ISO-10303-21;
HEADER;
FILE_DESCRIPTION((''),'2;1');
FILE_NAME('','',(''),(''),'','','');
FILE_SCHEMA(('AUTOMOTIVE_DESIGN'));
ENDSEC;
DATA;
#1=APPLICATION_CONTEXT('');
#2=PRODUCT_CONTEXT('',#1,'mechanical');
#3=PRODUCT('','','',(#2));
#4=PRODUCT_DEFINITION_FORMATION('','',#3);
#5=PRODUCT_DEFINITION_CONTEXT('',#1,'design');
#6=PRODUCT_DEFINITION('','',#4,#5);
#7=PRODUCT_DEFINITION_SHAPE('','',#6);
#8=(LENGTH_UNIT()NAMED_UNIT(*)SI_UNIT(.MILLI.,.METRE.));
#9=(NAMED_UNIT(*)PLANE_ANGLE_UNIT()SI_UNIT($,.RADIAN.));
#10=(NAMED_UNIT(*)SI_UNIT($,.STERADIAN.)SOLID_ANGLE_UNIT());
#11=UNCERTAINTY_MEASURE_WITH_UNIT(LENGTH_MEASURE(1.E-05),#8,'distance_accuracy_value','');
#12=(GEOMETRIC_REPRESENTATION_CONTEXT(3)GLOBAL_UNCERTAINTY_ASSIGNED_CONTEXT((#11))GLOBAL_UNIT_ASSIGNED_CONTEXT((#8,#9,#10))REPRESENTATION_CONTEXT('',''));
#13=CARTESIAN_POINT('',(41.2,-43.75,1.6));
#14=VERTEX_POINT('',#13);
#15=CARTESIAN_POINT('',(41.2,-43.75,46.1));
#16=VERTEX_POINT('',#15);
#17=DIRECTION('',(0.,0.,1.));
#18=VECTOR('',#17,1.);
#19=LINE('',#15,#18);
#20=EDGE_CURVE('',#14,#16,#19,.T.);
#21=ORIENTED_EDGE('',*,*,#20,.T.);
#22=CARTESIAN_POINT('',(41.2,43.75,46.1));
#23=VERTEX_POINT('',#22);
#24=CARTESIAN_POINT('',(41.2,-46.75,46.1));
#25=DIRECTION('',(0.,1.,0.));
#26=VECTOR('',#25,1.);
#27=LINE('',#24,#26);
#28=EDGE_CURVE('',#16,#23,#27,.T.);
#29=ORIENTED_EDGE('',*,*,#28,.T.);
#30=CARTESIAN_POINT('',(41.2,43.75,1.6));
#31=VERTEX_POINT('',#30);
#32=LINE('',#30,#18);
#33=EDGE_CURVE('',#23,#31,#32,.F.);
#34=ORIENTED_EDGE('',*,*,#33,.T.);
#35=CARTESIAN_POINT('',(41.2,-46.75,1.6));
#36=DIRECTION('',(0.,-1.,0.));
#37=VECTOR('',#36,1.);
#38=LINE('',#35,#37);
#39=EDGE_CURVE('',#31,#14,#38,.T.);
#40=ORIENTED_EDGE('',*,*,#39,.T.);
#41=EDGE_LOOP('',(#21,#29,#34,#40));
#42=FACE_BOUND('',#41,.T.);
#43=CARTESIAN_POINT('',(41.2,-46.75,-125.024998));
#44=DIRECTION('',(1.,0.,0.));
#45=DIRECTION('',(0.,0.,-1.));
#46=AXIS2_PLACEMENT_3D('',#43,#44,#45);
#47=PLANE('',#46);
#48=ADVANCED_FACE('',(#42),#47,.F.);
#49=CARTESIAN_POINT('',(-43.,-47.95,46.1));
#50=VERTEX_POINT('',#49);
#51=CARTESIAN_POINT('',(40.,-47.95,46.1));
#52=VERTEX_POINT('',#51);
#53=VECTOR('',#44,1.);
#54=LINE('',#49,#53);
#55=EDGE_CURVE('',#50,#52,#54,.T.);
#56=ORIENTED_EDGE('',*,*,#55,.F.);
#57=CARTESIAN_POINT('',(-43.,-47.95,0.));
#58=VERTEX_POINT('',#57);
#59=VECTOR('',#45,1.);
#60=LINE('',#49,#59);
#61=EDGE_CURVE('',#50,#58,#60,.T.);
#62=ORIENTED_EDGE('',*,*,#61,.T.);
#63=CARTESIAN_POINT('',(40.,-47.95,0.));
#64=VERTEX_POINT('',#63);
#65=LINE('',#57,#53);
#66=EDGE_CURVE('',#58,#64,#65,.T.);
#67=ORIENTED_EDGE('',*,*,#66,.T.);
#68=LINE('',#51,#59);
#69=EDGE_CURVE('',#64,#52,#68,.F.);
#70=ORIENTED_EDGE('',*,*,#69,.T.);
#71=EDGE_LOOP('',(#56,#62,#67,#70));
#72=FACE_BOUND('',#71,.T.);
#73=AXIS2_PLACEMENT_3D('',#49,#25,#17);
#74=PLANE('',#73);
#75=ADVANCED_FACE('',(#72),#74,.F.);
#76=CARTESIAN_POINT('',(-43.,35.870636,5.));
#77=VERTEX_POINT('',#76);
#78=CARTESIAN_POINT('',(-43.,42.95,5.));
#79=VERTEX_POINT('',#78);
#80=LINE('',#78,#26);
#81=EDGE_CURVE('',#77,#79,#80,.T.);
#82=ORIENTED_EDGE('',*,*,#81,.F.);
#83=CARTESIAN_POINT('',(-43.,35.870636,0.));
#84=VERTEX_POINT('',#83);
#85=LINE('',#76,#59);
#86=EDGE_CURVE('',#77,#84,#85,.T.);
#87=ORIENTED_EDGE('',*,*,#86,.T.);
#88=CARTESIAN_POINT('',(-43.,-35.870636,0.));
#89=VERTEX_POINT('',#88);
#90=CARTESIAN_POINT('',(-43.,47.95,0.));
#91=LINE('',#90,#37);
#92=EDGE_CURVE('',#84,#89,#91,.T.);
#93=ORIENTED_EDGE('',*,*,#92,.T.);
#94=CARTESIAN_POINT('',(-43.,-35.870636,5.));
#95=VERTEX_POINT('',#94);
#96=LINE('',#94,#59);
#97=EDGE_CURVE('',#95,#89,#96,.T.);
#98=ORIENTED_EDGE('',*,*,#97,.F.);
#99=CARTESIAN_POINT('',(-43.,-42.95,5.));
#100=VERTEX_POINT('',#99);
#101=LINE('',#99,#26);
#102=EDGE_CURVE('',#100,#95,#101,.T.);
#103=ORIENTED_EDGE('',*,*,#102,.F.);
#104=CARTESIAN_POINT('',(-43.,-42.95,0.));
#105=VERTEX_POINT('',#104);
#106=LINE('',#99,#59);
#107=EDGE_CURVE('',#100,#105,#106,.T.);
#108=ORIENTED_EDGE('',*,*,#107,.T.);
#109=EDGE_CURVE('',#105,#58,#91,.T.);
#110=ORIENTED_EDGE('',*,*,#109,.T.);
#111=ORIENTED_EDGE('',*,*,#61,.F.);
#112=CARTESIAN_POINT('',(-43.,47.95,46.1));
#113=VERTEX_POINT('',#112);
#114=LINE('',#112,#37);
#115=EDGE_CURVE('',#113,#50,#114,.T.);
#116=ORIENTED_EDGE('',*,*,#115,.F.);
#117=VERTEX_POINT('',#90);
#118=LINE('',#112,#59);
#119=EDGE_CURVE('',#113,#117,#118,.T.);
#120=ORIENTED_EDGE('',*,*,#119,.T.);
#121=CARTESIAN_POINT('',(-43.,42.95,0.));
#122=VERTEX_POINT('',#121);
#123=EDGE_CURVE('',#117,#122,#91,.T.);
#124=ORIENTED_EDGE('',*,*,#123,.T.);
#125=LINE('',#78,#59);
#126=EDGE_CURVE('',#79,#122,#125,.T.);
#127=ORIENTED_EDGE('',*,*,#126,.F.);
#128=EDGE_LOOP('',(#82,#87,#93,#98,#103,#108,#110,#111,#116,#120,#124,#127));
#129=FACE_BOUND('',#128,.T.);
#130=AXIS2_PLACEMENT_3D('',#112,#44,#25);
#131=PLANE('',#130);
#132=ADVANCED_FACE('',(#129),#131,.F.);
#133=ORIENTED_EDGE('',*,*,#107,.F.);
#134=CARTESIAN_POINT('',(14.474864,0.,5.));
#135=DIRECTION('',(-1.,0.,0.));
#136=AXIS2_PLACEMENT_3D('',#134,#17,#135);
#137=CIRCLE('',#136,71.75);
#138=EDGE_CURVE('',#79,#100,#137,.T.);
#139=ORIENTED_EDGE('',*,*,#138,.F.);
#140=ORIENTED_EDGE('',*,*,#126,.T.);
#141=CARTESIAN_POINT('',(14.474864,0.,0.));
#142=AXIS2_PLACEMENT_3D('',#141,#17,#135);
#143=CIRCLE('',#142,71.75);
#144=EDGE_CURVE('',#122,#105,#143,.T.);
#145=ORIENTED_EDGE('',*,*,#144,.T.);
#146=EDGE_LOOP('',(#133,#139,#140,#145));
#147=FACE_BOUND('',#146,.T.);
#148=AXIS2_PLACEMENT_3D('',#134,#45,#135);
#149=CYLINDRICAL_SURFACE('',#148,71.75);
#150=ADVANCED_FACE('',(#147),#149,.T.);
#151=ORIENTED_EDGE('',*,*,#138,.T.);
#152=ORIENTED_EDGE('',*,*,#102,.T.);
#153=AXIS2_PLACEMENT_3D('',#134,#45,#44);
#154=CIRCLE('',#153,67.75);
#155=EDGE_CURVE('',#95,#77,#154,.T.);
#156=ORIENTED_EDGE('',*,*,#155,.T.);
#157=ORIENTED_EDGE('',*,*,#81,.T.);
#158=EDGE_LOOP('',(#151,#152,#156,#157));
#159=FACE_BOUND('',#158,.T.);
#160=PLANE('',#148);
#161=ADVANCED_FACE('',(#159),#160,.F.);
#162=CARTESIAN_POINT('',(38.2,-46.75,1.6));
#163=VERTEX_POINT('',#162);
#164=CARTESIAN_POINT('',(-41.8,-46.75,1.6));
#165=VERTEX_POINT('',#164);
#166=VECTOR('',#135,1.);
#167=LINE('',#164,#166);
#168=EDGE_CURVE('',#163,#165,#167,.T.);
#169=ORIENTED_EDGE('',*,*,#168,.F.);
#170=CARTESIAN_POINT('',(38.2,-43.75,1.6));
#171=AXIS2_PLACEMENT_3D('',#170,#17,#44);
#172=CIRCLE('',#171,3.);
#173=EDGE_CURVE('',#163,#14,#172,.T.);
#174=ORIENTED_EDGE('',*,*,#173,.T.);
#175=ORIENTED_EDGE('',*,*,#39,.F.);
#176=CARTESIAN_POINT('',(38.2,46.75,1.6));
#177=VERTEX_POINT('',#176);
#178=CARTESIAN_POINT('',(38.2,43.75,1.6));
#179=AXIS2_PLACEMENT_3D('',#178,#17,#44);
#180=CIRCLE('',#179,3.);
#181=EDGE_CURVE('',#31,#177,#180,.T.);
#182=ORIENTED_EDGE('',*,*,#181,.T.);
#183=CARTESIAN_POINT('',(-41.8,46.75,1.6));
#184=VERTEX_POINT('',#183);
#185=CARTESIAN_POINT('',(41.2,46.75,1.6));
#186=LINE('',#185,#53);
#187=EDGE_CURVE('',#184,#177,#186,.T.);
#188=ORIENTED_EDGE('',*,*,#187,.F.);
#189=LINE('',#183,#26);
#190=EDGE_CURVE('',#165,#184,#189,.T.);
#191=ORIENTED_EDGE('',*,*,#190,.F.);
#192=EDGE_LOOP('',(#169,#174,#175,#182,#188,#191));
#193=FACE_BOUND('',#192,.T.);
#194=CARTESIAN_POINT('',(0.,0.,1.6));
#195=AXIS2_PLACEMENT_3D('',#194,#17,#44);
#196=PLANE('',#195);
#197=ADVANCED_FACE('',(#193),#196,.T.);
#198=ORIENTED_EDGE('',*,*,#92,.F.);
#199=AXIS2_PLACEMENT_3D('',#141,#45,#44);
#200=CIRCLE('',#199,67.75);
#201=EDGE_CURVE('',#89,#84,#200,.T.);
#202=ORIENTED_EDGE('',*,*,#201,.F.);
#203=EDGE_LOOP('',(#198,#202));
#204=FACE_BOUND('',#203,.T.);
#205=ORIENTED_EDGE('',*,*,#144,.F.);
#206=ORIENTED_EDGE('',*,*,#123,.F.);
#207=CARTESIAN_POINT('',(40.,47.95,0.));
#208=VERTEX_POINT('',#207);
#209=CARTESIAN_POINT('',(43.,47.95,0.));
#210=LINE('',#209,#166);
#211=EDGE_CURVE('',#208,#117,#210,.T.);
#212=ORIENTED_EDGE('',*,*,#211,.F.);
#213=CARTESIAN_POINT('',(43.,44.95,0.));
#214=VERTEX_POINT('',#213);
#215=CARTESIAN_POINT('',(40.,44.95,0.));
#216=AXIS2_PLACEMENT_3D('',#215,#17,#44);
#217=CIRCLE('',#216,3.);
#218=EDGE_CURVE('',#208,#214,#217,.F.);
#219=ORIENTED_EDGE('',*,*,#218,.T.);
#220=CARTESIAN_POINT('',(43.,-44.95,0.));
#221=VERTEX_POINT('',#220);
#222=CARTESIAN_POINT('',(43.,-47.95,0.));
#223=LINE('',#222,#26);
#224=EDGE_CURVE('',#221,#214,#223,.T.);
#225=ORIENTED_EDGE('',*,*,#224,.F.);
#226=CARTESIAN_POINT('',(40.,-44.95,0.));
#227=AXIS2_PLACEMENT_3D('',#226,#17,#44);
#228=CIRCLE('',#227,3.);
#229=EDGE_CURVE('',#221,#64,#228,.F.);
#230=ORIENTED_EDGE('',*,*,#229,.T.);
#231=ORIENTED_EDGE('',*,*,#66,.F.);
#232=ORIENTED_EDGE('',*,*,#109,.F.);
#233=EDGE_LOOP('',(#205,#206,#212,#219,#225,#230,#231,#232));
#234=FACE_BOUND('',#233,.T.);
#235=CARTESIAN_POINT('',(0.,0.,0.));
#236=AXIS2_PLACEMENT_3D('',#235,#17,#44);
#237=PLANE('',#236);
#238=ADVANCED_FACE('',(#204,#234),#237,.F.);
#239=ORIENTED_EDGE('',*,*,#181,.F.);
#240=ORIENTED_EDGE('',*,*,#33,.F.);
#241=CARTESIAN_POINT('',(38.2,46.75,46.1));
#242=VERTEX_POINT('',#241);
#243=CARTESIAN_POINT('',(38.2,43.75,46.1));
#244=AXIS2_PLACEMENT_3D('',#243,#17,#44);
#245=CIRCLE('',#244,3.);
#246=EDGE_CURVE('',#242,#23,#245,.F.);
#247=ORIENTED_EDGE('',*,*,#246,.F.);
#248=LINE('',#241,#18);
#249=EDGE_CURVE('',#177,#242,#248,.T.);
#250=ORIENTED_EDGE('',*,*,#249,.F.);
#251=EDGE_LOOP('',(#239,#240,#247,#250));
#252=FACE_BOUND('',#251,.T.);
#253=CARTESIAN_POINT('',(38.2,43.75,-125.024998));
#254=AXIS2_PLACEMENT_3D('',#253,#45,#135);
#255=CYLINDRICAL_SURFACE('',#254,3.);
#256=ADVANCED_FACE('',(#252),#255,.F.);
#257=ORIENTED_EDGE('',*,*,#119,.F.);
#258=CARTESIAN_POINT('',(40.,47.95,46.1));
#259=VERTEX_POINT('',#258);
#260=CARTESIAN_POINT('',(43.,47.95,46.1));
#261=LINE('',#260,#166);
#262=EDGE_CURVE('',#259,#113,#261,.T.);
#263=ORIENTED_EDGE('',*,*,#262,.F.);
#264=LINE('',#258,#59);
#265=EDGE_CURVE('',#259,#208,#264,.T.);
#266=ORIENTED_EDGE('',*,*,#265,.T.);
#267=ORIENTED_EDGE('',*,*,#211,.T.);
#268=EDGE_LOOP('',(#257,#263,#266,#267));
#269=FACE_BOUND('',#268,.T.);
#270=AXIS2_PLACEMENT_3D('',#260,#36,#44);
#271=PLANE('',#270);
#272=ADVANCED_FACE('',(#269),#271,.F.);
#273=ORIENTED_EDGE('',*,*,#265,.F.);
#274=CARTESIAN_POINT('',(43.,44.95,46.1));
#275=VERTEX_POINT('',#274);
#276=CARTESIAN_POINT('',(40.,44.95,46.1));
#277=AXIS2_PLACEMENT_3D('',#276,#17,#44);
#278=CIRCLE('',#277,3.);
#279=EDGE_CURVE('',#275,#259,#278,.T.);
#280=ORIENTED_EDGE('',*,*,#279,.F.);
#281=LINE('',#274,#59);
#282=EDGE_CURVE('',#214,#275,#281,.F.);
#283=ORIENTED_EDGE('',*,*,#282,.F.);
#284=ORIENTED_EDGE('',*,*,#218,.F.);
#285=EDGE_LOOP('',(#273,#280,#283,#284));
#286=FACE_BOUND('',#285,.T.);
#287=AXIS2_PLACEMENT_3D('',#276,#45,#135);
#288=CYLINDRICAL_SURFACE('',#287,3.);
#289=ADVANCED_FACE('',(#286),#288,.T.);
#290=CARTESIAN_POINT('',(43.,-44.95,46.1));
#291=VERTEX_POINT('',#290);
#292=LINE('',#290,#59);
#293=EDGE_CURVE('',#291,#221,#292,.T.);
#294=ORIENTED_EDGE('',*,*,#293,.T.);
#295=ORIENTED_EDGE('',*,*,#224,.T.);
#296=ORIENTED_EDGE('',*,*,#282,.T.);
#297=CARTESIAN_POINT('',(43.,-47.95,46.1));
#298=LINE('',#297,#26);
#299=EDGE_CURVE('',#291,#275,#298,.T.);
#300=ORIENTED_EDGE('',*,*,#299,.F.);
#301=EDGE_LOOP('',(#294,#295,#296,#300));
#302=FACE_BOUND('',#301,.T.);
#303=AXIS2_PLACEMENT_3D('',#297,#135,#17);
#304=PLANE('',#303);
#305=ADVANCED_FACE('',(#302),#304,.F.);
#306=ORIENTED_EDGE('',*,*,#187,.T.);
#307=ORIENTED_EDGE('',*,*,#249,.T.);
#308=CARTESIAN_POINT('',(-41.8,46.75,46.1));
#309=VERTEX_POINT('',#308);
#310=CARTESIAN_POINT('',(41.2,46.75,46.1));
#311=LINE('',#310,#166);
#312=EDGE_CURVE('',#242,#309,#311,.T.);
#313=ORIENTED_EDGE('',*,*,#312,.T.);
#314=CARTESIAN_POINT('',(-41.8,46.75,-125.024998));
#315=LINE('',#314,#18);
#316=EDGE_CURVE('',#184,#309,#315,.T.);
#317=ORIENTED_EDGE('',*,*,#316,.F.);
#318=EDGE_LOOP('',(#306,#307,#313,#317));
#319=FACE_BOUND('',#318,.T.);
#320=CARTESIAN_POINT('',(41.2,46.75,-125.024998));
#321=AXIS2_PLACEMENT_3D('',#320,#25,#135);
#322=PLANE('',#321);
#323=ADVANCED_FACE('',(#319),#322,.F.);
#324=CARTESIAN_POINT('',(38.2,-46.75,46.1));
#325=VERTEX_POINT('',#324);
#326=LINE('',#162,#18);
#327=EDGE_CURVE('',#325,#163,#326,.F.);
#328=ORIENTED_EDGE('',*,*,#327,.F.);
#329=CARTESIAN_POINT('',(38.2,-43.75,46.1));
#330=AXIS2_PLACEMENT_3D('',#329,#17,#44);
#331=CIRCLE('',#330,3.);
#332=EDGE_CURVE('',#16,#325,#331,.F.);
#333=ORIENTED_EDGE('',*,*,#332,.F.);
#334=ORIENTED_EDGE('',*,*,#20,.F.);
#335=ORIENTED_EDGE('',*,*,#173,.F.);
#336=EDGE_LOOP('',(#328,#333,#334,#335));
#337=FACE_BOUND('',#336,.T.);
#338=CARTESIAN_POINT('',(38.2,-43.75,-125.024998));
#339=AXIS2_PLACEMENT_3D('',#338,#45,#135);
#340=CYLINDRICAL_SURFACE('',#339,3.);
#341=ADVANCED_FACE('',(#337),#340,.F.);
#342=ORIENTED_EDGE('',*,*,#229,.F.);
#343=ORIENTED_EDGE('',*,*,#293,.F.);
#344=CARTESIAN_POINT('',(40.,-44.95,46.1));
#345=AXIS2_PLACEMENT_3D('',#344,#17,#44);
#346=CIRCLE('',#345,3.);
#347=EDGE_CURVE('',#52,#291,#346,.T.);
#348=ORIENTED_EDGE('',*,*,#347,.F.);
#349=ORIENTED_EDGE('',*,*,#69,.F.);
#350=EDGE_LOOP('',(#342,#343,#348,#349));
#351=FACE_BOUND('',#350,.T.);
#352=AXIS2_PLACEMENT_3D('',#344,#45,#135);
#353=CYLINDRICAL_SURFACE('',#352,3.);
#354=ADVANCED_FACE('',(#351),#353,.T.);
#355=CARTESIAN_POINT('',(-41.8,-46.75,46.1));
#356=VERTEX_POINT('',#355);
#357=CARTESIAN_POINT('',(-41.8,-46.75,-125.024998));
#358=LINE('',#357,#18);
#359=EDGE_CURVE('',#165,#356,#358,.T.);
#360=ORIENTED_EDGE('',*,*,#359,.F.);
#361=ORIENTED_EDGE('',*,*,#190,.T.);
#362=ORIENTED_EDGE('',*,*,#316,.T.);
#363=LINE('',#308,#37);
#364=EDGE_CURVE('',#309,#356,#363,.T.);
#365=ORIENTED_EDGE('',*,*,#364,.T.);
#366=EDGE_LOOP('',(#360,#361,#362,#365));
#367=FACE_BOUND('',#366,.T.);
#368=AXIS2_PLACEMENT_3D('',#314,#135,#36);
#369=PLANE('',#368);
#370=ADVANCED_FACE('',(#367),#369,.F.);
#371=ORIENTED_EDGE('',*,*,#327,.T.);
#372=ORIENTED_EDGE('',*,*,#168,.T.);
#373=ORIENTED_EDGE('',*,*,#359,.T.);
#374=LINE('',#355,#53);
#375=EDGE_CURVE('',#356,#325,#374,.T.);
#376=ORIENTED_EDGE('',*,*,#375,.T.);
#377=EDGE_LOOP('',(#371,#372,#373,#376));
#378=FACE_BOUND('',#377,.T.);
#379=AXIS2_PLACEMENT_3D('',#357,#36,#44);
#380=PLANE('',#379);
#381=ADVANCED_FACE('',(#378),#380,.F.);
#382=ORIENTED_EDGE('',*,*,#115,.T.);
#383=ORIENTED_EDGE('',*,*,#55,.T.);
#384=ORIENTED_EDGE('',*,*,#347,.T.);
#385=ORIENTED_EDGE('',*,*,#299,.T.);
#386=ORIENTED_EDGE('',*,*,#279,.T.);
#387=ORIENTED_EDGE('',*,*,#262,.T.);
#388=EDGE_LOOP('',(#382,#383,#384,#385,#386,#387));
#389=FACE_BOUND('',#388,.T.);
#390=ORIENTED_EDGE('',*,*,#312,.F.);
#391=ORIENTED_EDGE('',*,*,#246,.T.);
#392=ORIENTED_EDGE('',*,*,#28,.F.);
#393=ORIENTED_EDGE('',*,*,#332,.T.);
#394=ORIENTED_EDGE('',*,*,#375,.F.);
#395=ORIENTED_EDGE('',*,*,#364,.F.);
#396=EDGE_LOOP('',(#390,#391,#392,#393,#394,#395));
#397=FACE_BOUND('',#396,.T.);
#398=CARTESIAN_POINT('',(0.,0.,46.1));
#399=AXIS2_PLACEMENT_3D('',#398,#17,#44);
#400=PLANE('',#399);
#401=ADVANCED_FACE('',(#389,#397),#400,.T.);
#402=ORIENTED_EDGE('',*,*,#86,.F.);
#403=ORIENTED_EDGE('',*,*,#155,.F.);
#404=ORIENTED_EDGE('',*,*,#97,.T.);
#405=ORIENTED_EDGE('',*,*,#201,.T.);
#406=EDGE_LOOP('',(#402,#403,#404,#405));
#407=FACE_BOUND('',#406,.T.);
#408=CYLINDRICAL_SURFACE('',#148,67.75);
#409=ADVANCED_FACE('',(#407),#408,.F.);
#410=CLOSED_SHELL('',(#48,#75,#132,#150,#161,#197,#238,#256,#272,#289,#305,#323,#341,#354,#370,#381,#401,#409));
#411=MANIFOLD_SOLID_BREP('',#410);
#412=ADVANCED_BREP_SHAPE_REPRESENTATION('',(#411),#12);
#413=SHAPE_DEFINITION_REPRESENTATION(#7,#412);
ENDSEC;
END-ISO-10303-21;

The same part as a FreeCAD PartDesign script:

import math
import FreeCAD as App
import Part
import Sketcher

V = App.Vector
Q = App.Units.Quantity


def edges_at(feature, points):
    """Names of the edges that pass closest to the given points."""
    edges = feature.Shape.Edges
    near = lambda p: min(range(len(edges)), key=lambda i: edges[i].distToShape(Part.Vertex(*p))[0])
    return sorted({f"Edge{near(p) + 1}" for p in points})

doc = App.newDocument("Part")
params = doc.addObject("Spreadsheet::Sheet", "Params")
for row, (alias, value) in enumerate([
    ("sketch1_width", "86 mm"),
    ("sketch1_height", "95.9 mm"),
    ("pad1_length", "46.1 mm"),
    ("sketch2_radius", "71.75 mm"),
    ("sketch2_radius2", "67.75 mm"),
    ("pad2_length", "5 mm"),
    ("sketch3_width", "83 mm"),
    ("sketch3_height", "93.5 mm"),
    ("pocket1_length", "44.5 mm"),
    ("fillet_radius", "3 mm"),
], start=1):
    params.set(f"A{row}", alias)
    params.set(f"B{row}", "=" + value)
    params.setAlias(f"B{row}", alias)

body = doc.addObject("PartDesign::Body", "Body")

sketch1 = body.newObject("Sketcher::SketchObject", "Sketch")
sketch1.AttachmentSupport = (doc.getObject("XY_Plane"), [""])
sketch1.MapMode = "FlatFace"
sketch1.addGeometry([
    Part.LineSegment(V(-43, 47.95, 0), V(-43, -47.95, 0)),
    Part.LineSegment(V(-43, -47.95, 0), V(43, -47.95, 0)),
    Part.LineSegment(V(43, -47.95, 0), V(43, 47.95, 0)),
    Part.LineSegment(V(43, 47.95, 0), V(-43, 47.95, 0)),
], False)
sketch1.addConstraint([
    Sketcher.Constraint("Coincident", 0, 2, 1, 1),
    Sketcher.Constraint("Coincident", 1, 2, 2, 1),
    Sketcher.Constraint("Coincident", 2, 2, 3, 1),
    Sketcher.Constraint("Coincident", 3, 2, 0, 1),
    Sketcher.Constraint("Vertical", 0),
    Sketcher.Constraint("Horizontal", 1),
    Sketcher.Constraint("Vertical", 2),
    Sketcher.Constraint("Horizontal", 3),
    Sketcher.Constraint("Symmetric", 0, 2, 2, 2, -1, 1),
    Sketcher.Constraint("DistanceX", 1, 1, 1, 2, Q("86 mm")),
    Sketcher.Constraint("DistanceY", 0, 2, 0, 1, Q("95.9 mm")),
])
sketch1.setExpression("Constraints[9]", "Params.sketch1_width")
sketch1.setExpression("Constraints[10]", "Params.sketch1_height")
pad1 = body.newObject("PartDesign::Pad", "Pad")
pad1.Profile = sketch1
pad1.setExpression("Length", "Params.pad1_length")

sketch2 = body.newObject("Sketcher::SketchObject", "Sketch001")
sketch2.AttachmentSupport = (doc.getObject("XY_Plane"), [""])
sketch2.MapMode = "FlatFace"
sketch2.addGeometry([
    Part.LineSegment(V(-43, 35.870636, 0), V(-43, 42.95, 0)),
    Part.ArcOfCircle(Part.Circle(V(14.474864, 0, 0), V(0, 0, 1), 71.75), math.radians(143.229856), math.radians(216.770144)),
    Part.LineSegment(V(-43, -42.95, 0), V(-43, -35.870636, 0)),
    Part.ArcOfCircle(Part.Circle(V(14.474864, 0, 0), V(0, 0, 1), 67.75), math.radians(148.031302), math.radians(211.968698)),
], False)
sketch2.addConstraint([
    Sketcher.Constraint("Coincident", 0, 2, 1, 1),
    Sketcher.Constraint("Coincident", 1, 2, 2, 1),
    Sketcher.Constraint("Coincident", 2, 2, 3, 2),
    Sketcher.Constraint("Coincident", 3, 1, 0, 1),
    Sketcher.Constraint("Vertical", 0),
    Sketcher.Constraint("Vertical", 2),
    Sketcher.Constraint("Coincident", 3, 3, 1, 3),
    Sketcher.Constraint("Symmetric", 0, 2, 1, 2, -1),
    Sketcher.Constraint("Radius", 1, Q("71.75 mm")),
    Sketcher.Constraint("Radius", 3, Q("67.75 mm")),
    Sketcher.Constraint("DistanceX", 0, 2, -1, 1, Q("43 mm")),
    Sketcher.Constraint("DistanceY", 1, 2, 0, 2, Q("85.9 mm")),
])
sketch2.setExpression("Constraints[8]", "Params.sketch2_radius")
sketch2.setExpression("Constraints[9]", "Params.sketch2_radius2")
pad2 = body.newObject("PartDesign::Pad", "Pad001")
pad2.Profile = sketch2
pad2.setExpression("Length", "Params.pad2_length")

sketch3 = body.newObject("Sketcher::SketchObject", "Sketch002")
sketch3.AttachmentSupport = (doc.getObject("XY_Plane"), [""])
sketch3.MapMode = "FlatFace"
sketch3.AttachmentOffset = App.Placement(V(0, 0, 46.1), App.Rotation())
sketch3.addGeometry([
    Part.LineSegment(V(-41.8, 46.75, 0), V(-41.8, -46.75, 0)),
    Part.LineSegment(V(-41.8, -46.75, 0), V(41.2, -46.75, 0)),
    Part.LineSegment(V(41.2, -46.75, 0), V(41.2, 46.75, 0)),
    Part.LineSegment(V(41.2, 46.75, 0), V(-41.8, 46.75, 0)),
], False)
sketch3.addConstraint([
    Sketcher.Constraint("Coincident", 0, 2, 1, 1),
    Sketcher.Constraint("Coincident", 1, 2, 2, 1),
    Sketcher.Constraint("Coincident", 2, 2, 3, 1),
    Sketcher.Constraint("Coincident", 3, 2, 0, 1),
    Sketcher.Constraint("Vertical", 0),
    Sketcher.Constraint("Horizontal", 1),
    Sketcher.Constraint("Vertical", 2),
    Sketcher.Constraint("Horizontal", 3),
    Sketcher.Constraint("DistanceX", 1, 1, 1, 2, Q("83 mm")),
    Sketcher.Constraint("DistanceY", 0, 2, 0, 1, Q("93.5 mm")),
    Sketcher.Constraint("DistanceX", 0, 2, -1, 1, Q("41.8 mm")),
    Sketcher.Constraint("DistanceY", 0, 2, -1, 1, Q("46.75 mm")),
])
sketch3.setExpression("Constraints[8]", "Params.sketch3_width")
sketch3.setExpression("Constraints[9]", "Params.sketch3_height")
pocket1 = body.newObject("PartDesign::Pocket", "Pocket")
pocket1.Profile = sketch3
pocket1.setExpression("Length", "Params.pocket1_length")
doc.recompute()

fillet = body.newObject("PartDesign::Fillet", "Fillet")
fillet.Base = (pocket1, edges_at(pocket1, [
    (41.2, 46.75, 23.85),
    (41.2, -46.75, 23.85),
    (43, 47.95, 23.05),
    (43, -47.95, 23.05),
]))
fillet.setExpression("Radius", "Params.fillet_radius")

doc.recompute()
